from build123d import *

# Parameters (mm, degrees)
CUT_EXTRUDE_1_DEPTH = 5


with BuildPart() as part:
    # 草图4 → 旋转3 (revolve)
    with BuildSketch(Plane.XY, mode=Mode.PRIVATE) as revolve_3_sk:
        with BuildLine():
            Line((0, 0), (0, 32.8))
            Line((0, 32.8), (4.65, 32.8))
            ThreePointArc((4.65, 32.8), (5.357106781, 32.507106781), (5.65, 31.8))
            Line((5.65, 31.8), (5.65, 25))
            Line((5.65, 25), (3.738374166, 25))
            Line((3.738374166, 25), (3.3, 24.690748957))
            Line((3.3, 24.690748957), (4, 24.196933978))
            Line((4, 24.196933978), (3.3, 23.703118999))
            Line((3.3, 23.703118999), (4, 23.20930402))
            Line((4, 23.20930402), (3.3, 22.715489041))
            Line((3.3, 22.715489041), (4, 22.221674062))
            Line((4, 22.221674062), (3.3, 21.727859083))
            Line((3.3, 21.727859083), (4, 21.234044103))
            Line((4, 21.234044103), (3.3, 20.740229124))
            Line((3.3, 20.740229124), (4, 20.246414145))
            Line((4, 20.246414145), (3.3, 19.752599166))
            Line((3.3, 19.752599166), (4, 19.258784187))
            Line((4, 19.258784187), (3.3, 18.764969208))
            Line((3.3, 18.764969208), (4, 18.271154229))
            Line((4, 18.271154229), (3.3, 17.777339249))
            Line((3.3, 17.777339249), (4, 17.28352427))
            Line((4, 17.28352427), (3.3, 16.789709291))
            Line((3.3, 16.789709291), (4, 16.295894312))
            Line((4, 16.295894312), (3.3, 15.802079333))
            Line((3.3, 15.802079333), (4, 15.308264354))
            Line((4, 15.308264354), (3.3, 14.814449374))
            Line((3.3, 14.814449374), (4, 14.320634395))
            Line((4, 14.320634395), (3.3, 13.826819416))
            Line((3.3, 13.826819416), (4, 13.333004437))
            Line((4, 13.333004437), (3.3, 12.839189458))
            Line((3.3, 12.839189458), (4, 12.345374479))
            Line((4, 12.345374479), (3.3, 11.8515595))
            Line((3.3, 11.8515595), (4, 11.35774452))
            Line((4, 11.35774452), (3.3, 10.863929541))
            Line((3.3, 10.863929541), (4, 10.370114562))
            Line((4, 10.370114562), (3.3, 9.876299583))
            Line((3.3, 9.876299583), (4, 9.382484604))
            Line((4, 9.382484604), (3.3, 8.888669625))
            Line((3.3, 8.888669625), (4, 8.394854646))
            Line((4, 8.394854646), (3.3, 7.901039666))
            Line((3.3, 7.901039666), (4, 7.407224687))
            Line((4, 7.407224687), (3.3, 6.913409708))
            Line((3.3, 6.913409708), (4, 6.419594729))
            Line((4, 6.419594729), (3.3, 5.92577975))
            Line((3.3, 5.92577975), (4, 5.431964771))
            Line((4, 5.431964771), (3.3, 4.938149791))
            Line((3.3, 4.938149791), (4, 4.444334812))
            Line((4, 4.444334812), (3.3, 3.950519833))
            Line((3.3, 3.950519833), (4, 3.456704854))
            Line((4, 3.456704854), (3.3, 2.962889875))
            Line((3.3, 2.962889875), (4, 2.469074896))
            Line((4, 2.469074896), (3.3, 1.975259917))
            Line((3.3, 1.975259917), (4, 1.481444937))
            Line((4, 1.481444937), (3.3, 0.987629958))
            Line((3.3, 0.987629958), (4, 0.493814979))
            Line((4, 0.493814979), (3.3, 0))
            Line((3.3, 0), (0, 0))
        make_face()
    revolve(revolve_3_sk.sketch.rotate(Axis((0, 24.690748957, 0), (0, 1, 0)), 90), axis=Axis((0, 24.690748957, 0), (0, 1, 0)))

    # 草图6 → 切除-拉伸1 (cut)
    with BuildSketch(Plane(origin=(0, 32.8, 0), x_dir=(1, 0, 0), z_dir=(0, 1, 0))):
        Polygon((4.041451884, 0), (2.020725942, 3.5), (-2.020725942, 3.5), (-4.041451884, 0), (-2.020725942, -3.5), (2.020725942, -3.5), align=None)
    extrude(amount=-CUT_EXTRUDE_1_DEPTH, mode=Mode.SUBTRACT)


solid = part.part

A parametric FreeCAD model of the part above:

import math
import FreeCAD as App
import Part
import Sketcher
Q = App.Units.Quantity


def add_polygon(sketch, points):
    """Adds a closed chain of lines whose ends are joined by coincident constraints."""
    first, n = sketch.GeometryCount, len(points)
    for a, b in zip(points, points[1:] + points[:1]):
        sketch.addGeometry(Part.LineSegment(App.Vector(*a, 0), App.Vector(*b, 0)), False)
    for i in range(n):
        sketch.addConstraint(Sketcher.Constraint("Coincident", first + i, 2, first + (i + 1) % n, 1))

doc = App.newDocument("Part")
params = doc.addObject("Spreadsheet::Sheet", "Params")
for row, (alias, value) in enumerate([
    ("sketch1_radius", "1 mm"),
    ("sketch1_width", "3.3 mm"),
    ("sketch1_height", "32.8 mm"),
    ("sketch1_height2", "6.8 mm"),
    ("sketch1_width2", "4.65 mm"),
    ("revolution_angle", "360 deg"),
    ("pocket1_length", "5 mm"),
], start=1):
    params.set(f"A{row}", alias)
    params.set(f"B{row}", "=" + value)
    params.setAlias(f"B{row}", alias)

body = doc.addObject("PartDesign::Body", "Body")

sketch1 = doc.addObject("Sketcher::SketchObject", "Sketch")
body.addObject(sketch1)
sketch1.AttachmentSupport = (doc.XY_Plane, [""])
sketch1.MapMode = "FlatFace"
sketch1.addGeometry([
    Part.LineSegment(App.Vector(0, 32.8, 0), App.Vector(0, 0, 0)),
    Part.LineSegment(App.Vector(0, 0, 0), App.Vector(3.3, 0, 0)),
    Part.LineSegment(App.Vector(3.3, 0, 0), App.Vector(4, 0.493815, 0)),
    Part.LineSegment(App.Vector(4, 0.493815, 0), App.Vector(3.3, 0.98763, 0)),
    Part.LineSegment(App.Vector(3.3, 0.98763, 0), App.Vector(4, 1.481445, 0)),
    Part.LineSegment(App.Vector(4, 1.481445, 0), App.Vector(3.3, 1.97526, 0)),
    Part.LineSegment(App.Vector(3.3, 1.97526, 0), App.Vector(4, 2.469075, 0)),
    Part.LineSegment(App.Vector(4, 2.469075, 0), App.Vector(3.3, 2.96289, 0)),
    Part.LineSegment(App.Vector(3.3, 2.96289, 0), App.Vector(4, 3.456705, 0)),
    Part.LineSegment(App.Vector(4, 3.456705, 0), App.Vector(3.3, 3.95052, 0)),
    Part.LineSegment(App.Vector(3.3, 3.95052, 0), App.Vector(4, 4.444335, 0)),
    Part.LineSegment(App.Vector(4, 4.444335, 0), App.Vector(3.3, 4.93815, 0)),
    Part.LineSegment(App.Vector(3.3, 4.93815, 0), App.Vector(4, 5.431965, 0)),
    Part.LineSegment(App.Vector(4, 5.431965, 0), App.Vector(3.3, 5.92578, 0)),
    Part.LineSegment(App.Vector(3.3, 5.92578, 0), App.Vector(4, 6.419595, 0)),
    Part.LineSegment(App.Vector(4, 6.419595, 0), App.Vector(3.3, 6.91341, 0)),
    Part.LineSegment(App.Vector(3.3, 6.91341, 0), App.Vector(4, 7.407225, 0)),
    Part.LineSegment(App.Vector(4, 7.407225, 0), App.Vector(3.3, 7.90104, 0)),
    Part.LineSegment(App.Vector(3.3, 7.90104, 0), App.Vector(4, 8.394855, 0)),
    Part.LineSegment(App.Vector(4, 8.394855, 0), App.Vector(3.3, 8.88867, 0)),
    Part.LineSegment(App.Vector(3.3, 8.88867, 0), App.Vector(4, 9.382485, 0)),
    Part.LineSegment(App.Vector(4, 9.382485, 0), App.Vector(3.3, 9.8763, 0)),
    Part.LineSegment(App.Vector(3.3, 9.8763, 0), App.Vector(4, 10.370115, 0)),
    Part.LineSegment(App.Vector(4, 10.370115, 0), App.Vector(3.3, 10.86393, 0)),
    Part.LineSegment(App.Vector(3.3, 10.86393, 0), App.Vector(4, 11.357745, 0)),
    Part.LineSegment(App.Vector(4, 11.357745, 0), App.Vector(3.3, 11.85156, 0)),
    Part.LineSegment(App.Vector(3.3, 11.85156, 0), App.Vector(4, 12.345374, 0)),
    Part.LineSegment(App.Vector(4, 12.345374, 0), App.Vector(3.3, 12.839189, 0)),
    Part.LineSegment(App.Vector(3.3, 12.839189, 0), App.Vector(4, 13.333004, 0)),
    Part.LineSegment(App.Vector(4, 13.333004, 0), App.Vector(3.3, 13.826819, 0)),
    Part.LineSegment(App.Vector(3.3, 13.826819, 0), App.Vector(4, 14.320634, 0)),
    Part.LineSegment(App.Vector(4, 14.320634, 0), App.Vector(3.3, 14.814449, 0)),
    Part.LineSegment(App.Vector(3.3, 14.814449, 0), App.Vector(4, 15.308264, 0)),
    Part.LineSegment(App.Vector(4, 15.308264, 0), App.Vector(3.3, 15.802079, 0)),
    Part.LineSegment(App.Vector(3.3, 15.802079, 0), App.Vector(4, 16.295894, 0)),
    Part.LineSegment(App.Vector(4, 16.295894, 0), App.Vector(3.3, 16.789709, 0)),
    Part.LineSegment(App.Vector(3.3, 16.789709, 0), App.Vector(4, 17.283524, 0)),
    Part.LineSegment(App.Vector(4, 17.283524, 0), App.Vector(3.3, 17.777339, 0)),
    Part.LineSegment(App.Vector(3.3, 17.777339, 0), App.Vector(4, 18.271154, 0)),
    Part.LineSegment(App.Vector(4, 18.271154, 0), App.Vector(3.3, 18.764969, 0)),
    Part.LineSegment(App.Vector(3.3, 18.764969, 0), App.Vector(4, 19.258784, 0)),
    Part.LineSegment(App.Vector(4, 19.258784, 0), App.Vector(3.3, 19.752599, 0)),
    Part.LineSegment(App.Vector(3.3, 19.752599, 0), App.Vector(4, 20.246414, 0)),
    Part.LineSegment(App.Vector(4, 20.246414, 0), App.Vector(3.3, 20.740229, 0)),
    Part.LineSegment(App.Vector(3.3, 20.740229, 0), App.Vector(4, 21.234044, 0)),
    Part.LineSegment(App.Vector(4, 21.234044, 0), App.Vector(3.3, 21.727859, 0)),
    Part.LineSegment(App.Vector(3.3, 21.727859, 0), App.Vector(4, 22.221674, 0)),
    Part.LineSegment(App.Vector(4, 22.221674, 0), App.Vector(3.3, 22.715489, 0)),
    Part.LineSegment(App.Vector(3.3, 22.715489, 0), App.Vector(4, 23.209304, 0)),
    Part.LineSegment(App.Vector(4, 23.209304, 0), App.Vector(3.3, 23.703119, 0)),
    Part.LineSegment(App.Vector(3.3, 23.703119, 0), App.Vector(4, 24.196934, 0)),
    Part.LineSegment(App.Vector(4, 24.196934, 0), App.Vector(3.3, 24.690749, 0)),
    Part.LineSegment(App.Vector(3.3, 24.690749, 0), App.Vector(3.738374, 25, 0)),
    Part.LineSegment(App.Vector(3.738374, 25, 0), App.Vector(5.65, 25, 0)),
    Part.LineSegment(App.Vector(5.65, 25, 0), App.Vector(5.65, 31.8, 0)),
    Part.ArcOfCircle(Part.Circle(App.Vector(4.65, 31.8, 0), App.Vector(0, 0, 1), 1), math.radians(0), math.radians(90)),
    Part.LineSegment(App.Vector(4.65, 32.8, 0), App.Vector(0, 32.8, 0)),
], False)
sketch1.addConstraint([
    Sketcher.Constraint("Coincident", 0, 2, 1, 1),
    Sketcher.Constraint("Coincident", 1, 2, 2, 1),
    Sketcher.Constraint("Coincident", 2, 2, 3, 1),
    Sketcher.Constraint("Coincident", 3, 2, 4, 1),
    Sketcher.Constraint("Coincident", 4, 2, 5, 1),
    Sketcher.Constraint("Coincident", 5, 2, 6, 1),
    Sketcher.Constraint("Coincident", 6, 2, 7, 1),
    Sketcher.Constraint("Coincident", 7, 2, 8, 1),
    Sketcher.Constraint("Coincident", 8, 2, 9, 1),
    Sketcher.Constraint("Coincident", 9, 2, 10, 1),
    Sketcher.Constraint("Coincident", 10, 2, 11, 1),
    Sketcher.Constraint("Coincident", 11, 2, 12, 1),
    Sketcher.Constraint("Coincident", 12, 2, 13, 1),
    Sketcher.Constraint("Coincident", 13, 2, 14, 1),
    Sketcher.Constraint("Coincident", 14, 2, 15, 1),
    Sketcher.Constraint("Coincident", 15, 2, 16, 1),
    Sketcher.Constraint("Coincident", 16, 2, 17, 1),
    Sketcher.Constraint("Coincident", 17, 2, 18, 1),
    Sketcher.Constraint("Coincident", 18, 2, 19, 1),
    Sketcher.Constraint("Coincident", 19, 2, 20, 1),
    Sketcher.Constraint("Coincident", 20, 2, 21, 1),
    Sketcher.Constraint("Coincident", 21, 2, 22, 1),
    Sketcher.Constraint("Coincident", 22, 2, 23, 1),
    Sketcher.Constraint("Coincident", 23, 2, 24, 1),
    Sketcher.Constraint("Coincident", 24, 2, 25, 1),
    Sketcher.Constraint("Coincident", 25, 2, 26, 1),
    Sketcher.Constraint("Coincident", 26, 2, 27, 1),
    Sketcher.Constraint("Coincident", 27, 2, 28, 1),
    Sketcher.Constraint("Coincident", 28, 2, 29, 1),
    Sketcher.Constraint("Coincident", 29, 2, 30, 1),
    Sketcher.Constraint("Coincident", 30, 2, 31, 1),
    Sketcher.Constraint("Coincident", 31, 2, 32, 1),
    Sketcher.Constraint("Coincident", 32, 2, 33, 1),
    Sketcher.Constraint("Coincident", 33, 2, 34, 1),
    Sketcher.Constraint("Coincident", 34, 2, 35, 1),
    Sketcher.Constraint("Coincident", 35, 2, 36, 1),
    Sketcher.Constraint("Coincident", 36, 2, 37, 1),
    Sketcher.Constraint("Coincident", 37, 2, 38, 1),
    Sketcher.Constraint("Coincident", 38, 2, 39, 1),
    Sketcher.Constraint("Coincident", 39, 2, 40, 1),
    Sketcher.Constraint("Coincident", 40, 2, 41, 1),
    Sketcher.Constraint("Coincident", 41, 2, 42, 1),
    Sketcher.Constraint("Coincident", 42, 2, 43, 1),
    Sketcher.Constraint("Coincident", 43, 2, 44, 1),
    Sketcher.Constraint("Coincident", 44, 2, 45, 1),
    Sketcher.Constraint("Coincident", 45, 2, 46, 1),
    Sketcher.Constraint("Coincident", 46, 2, 47, 1),
    Sketcher.Constraint("Coincident", 47, 2, 48, 1),
    Sketcher.Constraint("Coincident", 48, 2, 49, 1),
    Sketcher.Constraint("Coincident", 49, 2, 50, 1),
    Sketcher.Constraint("Coincident", 50, 2, 51, 1),
    Sketcher.Constraint("Coincident", 51, 2, 52, 1),
    Sketcher.Constraint("Coincident", 52, 2, 53, 1),
    Sketcher.Constraint("Coincident", 53, 2, 54, 1),
    Sketcher.Constraint("Tangent", 54, 2, 55, 1),
    Sketcher.Constraint("Tangent", 55, 2, 56, 1),
    Sketcher.Constraint("Coincident", 56, 2, 0, 1),
    Sketcher.Constraint("Vertical", 0),
    Sketcher.Constraint("Horizontal", 1),
    Sketcher.Constraint("Horizontal", 53),
    Sketcher.Constraint("Vertical", 54),
    Sketcher.Constraint("Horizontal", 56),
    Sketcher.Constraint("Coincident", 0, 2, -1, 1),
    Sketcher.Constraint("Parallel", 2, 4),
    Sketcher.Constraint("Parallel", 3, 5),
    Sketcher.Constraint("Parallel", 4, 6),
    Sketcher.Constraint("Parallel", 5, 7),
    Sketcher.Constraint("Parallel", 6, 8),
    Sketcher.Constraint("Parallel", 7, 9),
    Sketcher.Constraint("Parallel", 8, 10),
    Sketcher.Constraint("Parallel", 9, 11),
    Sketcher.Constraint("Parallel", 10, 12),
    Sketcher.Constraint("Parallel", 11, 13),
    Sketcher.Constraint("Parallel", 12, 14),
    Sketcher.Constraint("Parallel", 13, 15),
    Sketcher.Constraint("Parallel", 14, 16),
    Sketcher.Constraint("Parallel", 15, 17),
    Sketcher.Constraint("Parallel", 16, 18),
    Sketcher.Constraint("Parallel", 17, 19),
    Sketcher.Constraint("Parallel", 18, 20),
    Sketcher.Constraint("Parallel", 19, 21),
    Sketcher.Constraint("Parallel", 20, 22),
    Sketcher.Constraint("Parallel", 21, 23),
    Sketcher.Constraint("Parallel", 22, 24),
    Sketcher.Constraint("Parallel", 23, 25),
    Sketcher.Constraint("Parallel", 24, 26),
    Sketcher.Constraint("Parallel", 25, 27),
    Sketcher.Constraint("Parallel", 26, 28),
    Sketcher.Constraint("Parallel", 27, 29),
    Sketcher.Constraint("Parallel", 28, 30),
    Sketcher.Constraint("Parallel", 29, 31),
    Sketcher.Constraint("Parallel", 30, 32),
    Sketcher.Constraint("Parallel", 31, 33),
    Sketcher.Constraint("Parallel", 32, 34),
    Sketcher.Constraint("Parallel", 33, 35),
    Sketcher.Constraint("Parallel", 34, 36),
    Sketcher.Constraint("Parallel", 35, 37),
    Sketcher.Constraint("Parallel", 36, 38),
    Sketcher.Constraint("Parallel", 37, 39),
    Sketcher.Constraint("Parallel", 38, 40),
    Sketcher.Constraint("Parallel", 39, 41),
    Sketcher.Constraint("Parallel", 40, 42),
    Sketcher.Constraint("Parallel", 41, 43),
    Sketcher.Constraint("Parallel", 42, 44),
    Sketcher.Constraint("Parallel", 43, 45),
    Sketcher.Constraint("Parallel", 44, 46),
    Sketcher.Constraint("Parallel", 45, 47),
    Sketcher.Constraint("Parallel", 46, 48),
    Sketcher.Constraint("Parallel", 47, 49),
    Sketcher.Constraint("Parallel", 48, 50),
    Sketcher.Constraint("Parallel", 49, 51),
    Sketcher.Constraint("Parallel", 50, 52),
    Sketcher.Constraint("Vertical", 1, 2, 3, 2),
    Sketcher.Constraint("Vertical", 2, 2, 4, 2),
    Sketcher.Constraint("Vertical", 3, 2, 5, 2),
    Sketcher.Constraint("Vertical", 4, 2, 6, 2),
    Sketcher.Constraint("Vertical", 5, 2, 7, 2),
    Sketcher.Constraint("Vertical", 6, 2, 8, 2),
    Sketcher.Constraint("Vertical", 7, 2, 9, 2),
    Sketcher.Constraint("Vertical", 8, 2, 10, 2),
    Sketcher.Constraint("Vertical", 9, 2, 11, 2),
    Sketcher.Constraint("Vertical", 10, 2, 12, 2),
    Sketcher.Constraint("Vertical", 11, 2, 13, 2),
    Sketcher.Constraint("Vertical", 12, 2, 14, 2),
    Sketcher.Constraint("Vertical", 13, 2, 15, 2),
    Sketcher.Constraint("Vertical", 14, 2, 16, 2),
    Sketcher.Constraint("Vertical", 15, 2, 17, 2),
    Sketcher.Constraint("Vertical", 16, 2, 18, 2),
    Sketcher.Constraint("Vertical", 17, 2, 19, 2),
    Sketcher.Constraint("Vertical", 18, 2, 20, 2),
    Sketcher.Constraint("Vertical", 19, 2, 21, 2),
    Sketcher.Constraint("Vertical", 20, 2, 22, 2),
    Sketcher.Constraint("Vertical", 21, 2, 23, 2),
    Sketcher.Constraint("Vertical", 22, 2, 24, 2),
    Sketcher.Constraint("Vertical", 23, 2, 25, 2),
    Sketcher.Constraint("Vertical", 24, 2, 26, 2),
    Sketcher.Constraint("Vertical", 25, 2, 27, 2),
    Sketcher.Constraint("Vertical", 26, 2, 28, 2),
    Sketcher.Constraint("Vertical", 27, 2, 29, 2),
    Sketcher.Constraint("Vertical", 28, 2, 30, 2),
    Sketcher.Constraint("Vertical", 29, 2, 31, 2),
    Sketcher.Constraint("Vertical", 30, 2, 32, 2),
    Sketcher.Constraint("Vertical", 31, 2, 33, 2),
    Sketcher.Constraint("Vertical", 32, 2, 34, 2),
    Sketcher.Constraint("Vertical", 33, 2, 35, 2),
    Sketcher.Constraint("Vertical", 34, 2, 36, 2),
    Sketcher.Constraint("Vertical", 35, 2, 37, 2),
    Sketcher.Constraint("Vertical", 36, 2, 38, 2),
    Sketcher.Constraint("Vertical", 37, 2, 39, 2),
    Sketcher.Constraint("Vertical", 38, 2, 40, 2),
    Sketcher.Constraint("Vertical", 39, 2, 41, 2),
    Sketcher.Constraint("Vertical", 40, 2, 42, 2),
    Sketcher.Constraint("Vertical", 41, 2, 43, 2),
    Sketcher.Constraint("Vertical", 42, 2, 44, 2),
    Sketcher.Constraint("Vertical", 43, 2, 45, 2),
    Sketcher.Constraint("Vertical", 44, 2, 46, 2),
    Sketcher.Constraint("Vertical", 45, 2, 47, 2),
    Sketcher.Constraint("Vertical", 46, 2, 48, 2),
    Sketcher.Constraint("Vertical", 47, 2, 49, 2),
    Sketcher.Constraint("Vertical", 48, 2, 50, 2),
    Sketcher.Constraint("Vertical", 49, 2, 51, 2),
    Sketcher.Constraint("Equal", 2, 3),
    Sketcher.Constraint("Radius", 55, Q("1 mm")),
    Sketcher.Constraint("DistanceX", 1, 1, 1, 2, Q("3.3 mm")),
    Sketcher.Constraint("DistanceY", 0, 2, 0, 1, Q("32.8 mm")),
    Sketcher.Constraint("DistanceY", 54, 1, 54, 2, Q("6.8 mm")),
    Sketcher.Constraint("DistanceX", -1, 1, 2, 2, Q("4 mm")),
    Sketcher.Constraint("DistanceX", 56, 2, 56, 1, Q("4.65 mm")),
    Sketcher.Constraint("DistanceY", -1, 1, 21, 2, Q("9.8763 mm")),
])
sketch1.setExpression("Constraints[162]", "Params.sketch1_radius")
sketch1.setExpression("Constraints[163]", "Params.sketch1_width")
sketch1.setExpression("Constraints[164]", "Params.sketch1_height")
sketch1.setExpression("Constraints[165]", "Params.sketch1_height2")
sketch1.setExpression("Constraints[167]", "Params.sketch1_width2")
revolution = doc.addObject("PartDesign::Revolution", "Revolution")
body.addObject(revolution)
revolution.Profile = sketch1
revolution.ReferenceAxis = (sketch1, ["V_Axis"])
revolution.setExpression("Angle", "Params.revolution_angle")

sketch2 = doc.addObject("Sketcher::SketchObject", "Sketch001")
body.addObject(sketch2)
sketch2.AttachmentSupport = (doc.XZ_Plane, [""])
sketch2.MapMode = "FlatFace"
sketch2.AttachmentOffset = App.Placement(App.Vector(0, 0, -32.8), App.Rotation())
add_polygon(sketch2, [(4.041452, 0), (2.020726, -3.5), (-2.020726, -3.5), (-4.041452, 0), (-2.020726, 3.5), (2.020726, 3.5)])
sketch2.addConstraint([
    Sketcher.Constraint("Horizontal", 1),
    Sketcher.Constraint("Horizontal", 4),
    Sketcher.Constraint("Symmetric", 0, 2, 3, 2, -1, 1),
    Sketcher.Constraint("Symmetric", 2, 2, 5, 2, -1, 1),
    Sketcher.Constraint("PointOnObject", 2, 2, -1),
    Sketcher.Constraint("Parallel", 2, 5),
    Sketcher.Constraint("Vertical", 1, 2, 3, 2),
    Sketcher.Constraint("Angle", 0, Q("-120 deg")),
    Sketcher.Constraint("DistanceY", 1, 2, 3, 2, Q("7 mm")),
    Sketcher.Constraint("DistanceX", 1, 2, 1, 1, Q("4.041452 mm")),
])
pocket1 = doc.addObject("PartDesign::Pocket", "Pocket")
body.addObject(pocket1)
pocket1.Profile = sketch2
pocket1.setExpression("Length", "Params.pocket1_length")
pocket1.Reversed = True

doc.recompute()
